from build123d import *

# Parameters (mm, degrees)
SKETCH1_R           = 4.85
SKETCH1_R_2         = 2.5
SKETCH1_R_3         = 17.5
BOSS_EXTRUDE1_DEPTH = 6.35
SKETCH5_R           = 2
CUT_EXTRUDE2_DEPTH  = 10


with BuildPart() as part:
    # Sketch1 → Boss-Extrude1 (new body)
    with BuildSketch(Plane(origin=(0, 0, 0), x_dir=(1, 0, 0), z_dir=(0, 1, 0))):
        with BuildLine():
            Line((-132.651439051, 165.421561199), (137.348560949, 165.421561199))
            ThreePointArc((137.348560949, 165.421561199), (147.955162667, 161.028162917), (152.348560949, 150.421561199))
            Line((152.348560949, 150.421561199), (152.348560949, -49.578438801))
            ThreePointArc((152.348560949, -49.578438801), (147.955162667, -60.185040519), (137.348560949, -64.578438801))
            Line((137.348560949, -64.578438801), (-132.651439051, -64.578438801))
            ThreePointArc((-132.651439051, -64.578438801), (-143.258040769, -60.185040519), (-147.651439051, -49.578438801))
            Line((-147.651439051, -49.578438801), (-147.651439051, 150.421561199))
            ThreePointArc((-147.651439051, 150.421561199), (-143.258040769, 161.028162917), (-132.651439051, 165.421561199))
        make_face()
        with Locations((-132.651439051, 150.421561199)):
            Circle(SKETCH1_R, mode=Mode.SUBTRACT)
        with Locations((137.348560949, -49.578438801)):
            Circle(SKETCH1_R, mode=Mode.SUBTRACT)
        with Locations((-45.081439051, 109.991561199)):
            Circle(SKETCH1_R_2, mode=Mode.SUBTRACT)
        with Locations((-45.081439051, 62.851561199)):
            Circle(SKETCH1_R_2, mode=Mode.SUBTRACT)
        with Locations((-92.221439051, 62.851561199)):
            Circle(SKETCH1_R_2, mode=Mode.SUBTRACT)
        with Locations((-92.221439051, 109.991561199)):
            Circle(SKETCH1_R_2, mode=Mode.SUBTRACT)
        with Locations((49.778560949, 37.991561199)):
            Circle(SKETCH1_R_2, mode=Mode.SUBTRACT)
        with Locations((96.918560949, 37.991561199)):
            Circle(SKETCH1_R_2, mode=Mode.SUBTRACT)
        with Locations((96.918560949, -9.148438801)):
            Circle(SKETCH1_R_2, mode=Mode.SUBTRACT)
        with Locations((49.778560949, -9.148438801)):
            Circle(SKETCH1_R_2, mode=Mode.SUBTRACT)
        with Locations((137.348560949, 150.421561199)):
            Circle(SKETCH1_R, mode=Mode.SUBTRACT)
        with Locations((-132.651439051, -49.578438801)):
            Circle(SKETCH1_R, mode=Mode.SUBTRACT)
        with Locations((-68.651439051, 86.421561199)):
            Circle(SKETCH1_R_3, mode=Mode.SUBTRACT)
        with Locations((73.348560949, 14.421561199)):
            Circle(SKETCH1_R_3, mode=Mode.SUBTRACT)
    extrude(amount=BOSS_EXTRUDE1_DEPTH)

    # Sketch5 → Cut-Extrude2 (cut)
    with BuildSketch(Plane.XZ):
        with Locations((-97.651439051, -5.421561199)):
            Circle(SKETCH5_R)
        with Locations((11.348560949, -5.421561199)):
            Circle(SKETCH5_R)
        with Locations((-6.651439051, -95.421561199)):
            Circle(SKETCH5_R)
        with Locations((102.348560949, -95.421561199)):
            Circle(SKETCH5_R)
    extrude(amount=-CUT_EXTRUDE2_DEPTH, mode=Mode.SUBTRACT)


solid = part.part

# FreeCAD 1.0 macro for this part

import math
import FreeCAD as App
import Part
import Sketcher

doc = App.newDocument("Part")
body = doc.addObject("PartDesign::Body", "Body")

sketch1 = body.newObject("Sketcher::SketchObject", "Sketch")
sketch1.AttachmentSupport = (doc.getObject("XZ_Plane"), [""])
sketch1.MapMode = "FlatFace"
sketch1.addGeometry([
    Part.LineSegment(App.Vector(137.348561, -165.421561, 0), App.Vector(-132.651439, -165.421561, 0)),
    Part.ArcOfCircle(Part.Circle(App.Vector(-132.651439, -150.421561, 0), App.Vector(0, 0, 1), 15), math.radians(180), math.radians(270)),
    Part.LineSegment(App.Vector(-147.651439, -150.421561, 0), App.Vector(-147.651439, 49.578439, 0)),
    Part.ArcOfCircle(Part.Circle(App.Vector(-132.651439, 49.578439, 0), App.Vector(0, 0, 1), 15), math.radians(90), math.radians(180)),
    Part.LineSegment(App.Vector(-132.651439, 64.578439, 0), App.Vector(137.348561, 64.578439, 0)),
    Part.ArcOfCircle(Part.Circle(App.Vector(137.348561, 49.578439, 0), App.Vector(0, 0, 1), 15), math.radians(0), math.radians(90)),
    Part.LineSegment(App.Vector(152.348561, 49.578439, 0), App.Vector(152.348561, -150.421561, 0)),
    Part.ArcOfCircle(Part.Circle(App.Vector(137.348561, -150.421561, 0), App.Vector(0, 0, 1), 15), math.radians(-90), math.radians(0)),
    Part.Circle(App.Vector(137.348561, 49.578439, 0), App.Vector(0, 0, 1), 4.85),
    Part.Circle(App.Vector(96.918561, 9.148439, 0), App.Vector(0, 0, 1), 2.5),
    Part.Circle(App.Vector(49.778561, 9.148439, 0), App.Vector(0, 0, 1), 2.5),
    Part.Circle(App.Vector(73.348561, -14.421561, 0), App.Vector(0, 0, 1), 17.5),
    Part.Circle(App.Vector(96.918561, -37.991561, 0), App.Vector(0, 0, 1), 2.5),
    Part.Circle(App.Vector(49.778561, -37.991561, 0), App.Vector(0, 0, 1), 2.5),
    Part.Circle(App.Vector(-132.651439, 49.578439, 0), App.Vector(0, 0, 1), 4.85),
    Part.Circle(App.Vector(137.348561, -150.421561, 0), App.Vector(0, 0, 1), 4.85),
    Part.Circle(App.Vector(-45.081439, -62.851561, 0), App.Vector(0, 0, 1), 2.5),
    Part.Circle(App.Vector(-92.221439, -62.851561, 0), App.Vector(0, 0, 1), 2.5),
    Part.Circle(App.Vector(-68.651439, -86.421561, 0), App.Vector(0, 0, 1), 17.5),
    Part.Circle(App.Vector(-45.081439, -109.991561, 0), App.Vector(0, 0, 1), 2.5),
    Part.Circle(App.Vector(-92.221439, -109.991561, 0), App.Vector(0, 0, 1), 2.5),
    Part.Circle(App.Vector(-132.651439, -150.421561, 0), App.Vector(0, 0, 1), 4.85),
], False)
sketch1.addConstraint([
    Sketcher.Constraint("Tangent", 0, 2, 1, 2),
    Sketcher.Constraint("Tangent", 1, 1, 2, 1),
    Sketcher.Constraint("Tangent", 2, 2, 3, 2),
    Sketcher.Constraint("Tangent", 3, 1, 4, 1),
    Sketcher.Constraint("Tangent", 4, 2, 5, 2),
    Sketcher.Constraint("Tangent", 5, 1, 6, 1),
    Sketcher.Constraint("Tangent", 6, 2, 7, 2),
    Sketcher.Constraint("Tangent", 7, 1, 0, 1),
    Sketcher.Constraint("Horizontal", 0),
    Sketcher.Constraint("Vertical", 2),
    Sketcher.Constraint("Horizontal", 4),
    Sketcher.Constraint("Vertical", 6),
    Sketcher.Constraint("Coincident", 8, 3, 5, 3),
    Sketcher.Constraint("Coincident", 14, 3, 3, 3),
    Sketcher.Constraint("Coincident", 15, 3, 7, 3),
    Sketcher.Constraint("Coincident", 21, 3, 1, 3),
    Sketcher.Constraint("Equal", 1, 3),
    Sketcher.Constraint("Equal", 3, 5),
    Sketcher.Constraint("Equal", 5, 7),
    Sketcher.Constraint("Equal", 9, 10),
    Sketcher.Constraint("Equal", 10, 12),
    Sketcher.Constraint("Equal", 12, 13),
    Sketcher.Constraint("Equal", 8, 14),
    Sketcher.Constraint("Equal", 14, 15),
    Sketcher.Constraint("Equal", 13, 16),
    Sketcher.Constraint("Equal", 16, 17),
    Sketcher.Constraint("Equal", 11, 18),
    Sketcher.Constraint("Equal", 17, 19),
    Sketcher.Constraint("Equal", 19, 20),
    Sketcher.Constraint("Equal", 15, 21),
    Sketcher.Constraint("Horizontal", 9, 3, 10, 3),
    Sketcher.Constraint("Horizontal", 12, 3, 13, 3),
    Sketcher.Constraint("Horizontal", 16, 3, 17, 3),
    Sketcher.Constraint("Horizontal", 19, 3, 20, 3),
    Sketcher.Constraint("Vertical", 9, 3, 12, 3),
    Sketcher.Constraint("Vertical", 10, 3, 13, 3),
    Sketcher.Constraint("Vertical", 16, 3, 19, 3),
    Sketcher.Constraint("Vertical", 17, 3, 20, 3),
    Sketcher.Constraint("Diameter", 9, 5.0),
    Sketcher.Constraint("Diameter", 11, 35.0),
    Sketcher.Constraint("Radius", 1, 15.0),
    Sketcher.Constraint("Diameter", 8, 9.7),
    Sketcher.Constraint("DistanceX", 0, 2, 0, 1, 270.0),
    Sketcher.Constraint("DistanceY", 2, 1, 2, 2, 200.0),
    Sketcher.Constraint("DistanceX", 11, 3, 8, 3, 64.0),
    Sketcher.Constraint("DistanceY", 11, 3, 8, 3, 64.0),
    Sketcher.Constraint("DistanceY", 16, 3, 10, 3, 72.0),
    Sketcher.Constraint("DistanceX", 17, 3, 13, 3, 142.0),
    Sketcher.Constraint("DistanceX", 1, 3, 18, 3, 64.0),
    Sketcher.Constraint("DistanceY", 1, 3, 18, 3, 64.0),
    Sketcher.Constraint("DistanceY", 19, 3, 13, 3, 72.0),
    Sketcher.Constraint("DistanceX", 9, 3, 8, 3, 40.43),
    Sketcher.Constraint("DistanceY", 9, 3, 8, 3, 40.43),
    Sketcher.Constraint("DistanceX", 10, 3, 9, 3, 47.14),
    Sketcher.Constraint("DistanceY", 12, 3, 11, 3, 23.57),
    Sketcher.Constraint("DistanceX", 16, 3, 13, 3, 94.86),
    Sketcher.Constraint("DistanceX", 1, 3, -1, 1, 132.651439),
    Sketcher.Constraint("DistanceY", 1, 3, -1, 1, 150.421561),
])
pad1 = body.newObject("PartDesign::Pad", "Pad")
pad1.Profile = sketch1
pad1.Length = 6.35
pad1.Reversed = True

sketch2 = body.newObject("Sketcher::SketchObject", "Sketch001")
sketch2.AttachmentSupport = (doc.getObject("XZ_Plane"), [""])
sketch2.MapMode = "FlatFace"
sketch2.addGeometry([
    Part.Circle(App.Vector(-97.651439, -5.421561, 0), App.Vector(0, 0, 1), 2),
    Part.Circle(App.Vector(11.348561, -5.421561, 0), App.Vector(0, 0, 1), 2),
    Part.Circle(App.Vector(-6.651439, -95.421561, 0), App.Vector(0, 0, 1), 2),
    Part.Circle(App.Vector(102.348561, -95.421561, 0), App.Vector(0, 0, 1), 2),
], False)
sketch2.addConstraint([
    Sketcher.Constraint("Equal", 0, 1),
    Sketcher.Constraint("Equal", 1, 2),
    Sketcher.Constraint("Equal", 2, 3),
    Sketcher.Constraint("Horizontal", 0, 3, 1, 3),
    Sketcher.Constraint("Horizontal", 2, 3, 3, 3),
    Sketcher.Constraint("Diameter", 0, 4.0),
    Sketcher.Constraint("DistanceX", 0, 3, 1, 3, 109.0),
    Sketcher.Constraint("DistanceX", 2, 3, 1, 3, 18.0),
    Sketcher.Constraint("DistanceY", 2, 3, 1, 3, 90.0),
    Sketcher.Constraint("DistanceX", 2, 3, 3, 3, 109.0),
    Sketcher.Constraint("DistanceX", 0, 3, -1, 1, 97.651439),
    Sketcher.Constraint("DistanceY", 0, 3, -1, 1, 5.421561),
])
pocket1 = body.newObject("PartDesign::Pocket", "Pocket")
pocket1.Profile = sketch2
pocket1.Length = 10

doc.recompute()
